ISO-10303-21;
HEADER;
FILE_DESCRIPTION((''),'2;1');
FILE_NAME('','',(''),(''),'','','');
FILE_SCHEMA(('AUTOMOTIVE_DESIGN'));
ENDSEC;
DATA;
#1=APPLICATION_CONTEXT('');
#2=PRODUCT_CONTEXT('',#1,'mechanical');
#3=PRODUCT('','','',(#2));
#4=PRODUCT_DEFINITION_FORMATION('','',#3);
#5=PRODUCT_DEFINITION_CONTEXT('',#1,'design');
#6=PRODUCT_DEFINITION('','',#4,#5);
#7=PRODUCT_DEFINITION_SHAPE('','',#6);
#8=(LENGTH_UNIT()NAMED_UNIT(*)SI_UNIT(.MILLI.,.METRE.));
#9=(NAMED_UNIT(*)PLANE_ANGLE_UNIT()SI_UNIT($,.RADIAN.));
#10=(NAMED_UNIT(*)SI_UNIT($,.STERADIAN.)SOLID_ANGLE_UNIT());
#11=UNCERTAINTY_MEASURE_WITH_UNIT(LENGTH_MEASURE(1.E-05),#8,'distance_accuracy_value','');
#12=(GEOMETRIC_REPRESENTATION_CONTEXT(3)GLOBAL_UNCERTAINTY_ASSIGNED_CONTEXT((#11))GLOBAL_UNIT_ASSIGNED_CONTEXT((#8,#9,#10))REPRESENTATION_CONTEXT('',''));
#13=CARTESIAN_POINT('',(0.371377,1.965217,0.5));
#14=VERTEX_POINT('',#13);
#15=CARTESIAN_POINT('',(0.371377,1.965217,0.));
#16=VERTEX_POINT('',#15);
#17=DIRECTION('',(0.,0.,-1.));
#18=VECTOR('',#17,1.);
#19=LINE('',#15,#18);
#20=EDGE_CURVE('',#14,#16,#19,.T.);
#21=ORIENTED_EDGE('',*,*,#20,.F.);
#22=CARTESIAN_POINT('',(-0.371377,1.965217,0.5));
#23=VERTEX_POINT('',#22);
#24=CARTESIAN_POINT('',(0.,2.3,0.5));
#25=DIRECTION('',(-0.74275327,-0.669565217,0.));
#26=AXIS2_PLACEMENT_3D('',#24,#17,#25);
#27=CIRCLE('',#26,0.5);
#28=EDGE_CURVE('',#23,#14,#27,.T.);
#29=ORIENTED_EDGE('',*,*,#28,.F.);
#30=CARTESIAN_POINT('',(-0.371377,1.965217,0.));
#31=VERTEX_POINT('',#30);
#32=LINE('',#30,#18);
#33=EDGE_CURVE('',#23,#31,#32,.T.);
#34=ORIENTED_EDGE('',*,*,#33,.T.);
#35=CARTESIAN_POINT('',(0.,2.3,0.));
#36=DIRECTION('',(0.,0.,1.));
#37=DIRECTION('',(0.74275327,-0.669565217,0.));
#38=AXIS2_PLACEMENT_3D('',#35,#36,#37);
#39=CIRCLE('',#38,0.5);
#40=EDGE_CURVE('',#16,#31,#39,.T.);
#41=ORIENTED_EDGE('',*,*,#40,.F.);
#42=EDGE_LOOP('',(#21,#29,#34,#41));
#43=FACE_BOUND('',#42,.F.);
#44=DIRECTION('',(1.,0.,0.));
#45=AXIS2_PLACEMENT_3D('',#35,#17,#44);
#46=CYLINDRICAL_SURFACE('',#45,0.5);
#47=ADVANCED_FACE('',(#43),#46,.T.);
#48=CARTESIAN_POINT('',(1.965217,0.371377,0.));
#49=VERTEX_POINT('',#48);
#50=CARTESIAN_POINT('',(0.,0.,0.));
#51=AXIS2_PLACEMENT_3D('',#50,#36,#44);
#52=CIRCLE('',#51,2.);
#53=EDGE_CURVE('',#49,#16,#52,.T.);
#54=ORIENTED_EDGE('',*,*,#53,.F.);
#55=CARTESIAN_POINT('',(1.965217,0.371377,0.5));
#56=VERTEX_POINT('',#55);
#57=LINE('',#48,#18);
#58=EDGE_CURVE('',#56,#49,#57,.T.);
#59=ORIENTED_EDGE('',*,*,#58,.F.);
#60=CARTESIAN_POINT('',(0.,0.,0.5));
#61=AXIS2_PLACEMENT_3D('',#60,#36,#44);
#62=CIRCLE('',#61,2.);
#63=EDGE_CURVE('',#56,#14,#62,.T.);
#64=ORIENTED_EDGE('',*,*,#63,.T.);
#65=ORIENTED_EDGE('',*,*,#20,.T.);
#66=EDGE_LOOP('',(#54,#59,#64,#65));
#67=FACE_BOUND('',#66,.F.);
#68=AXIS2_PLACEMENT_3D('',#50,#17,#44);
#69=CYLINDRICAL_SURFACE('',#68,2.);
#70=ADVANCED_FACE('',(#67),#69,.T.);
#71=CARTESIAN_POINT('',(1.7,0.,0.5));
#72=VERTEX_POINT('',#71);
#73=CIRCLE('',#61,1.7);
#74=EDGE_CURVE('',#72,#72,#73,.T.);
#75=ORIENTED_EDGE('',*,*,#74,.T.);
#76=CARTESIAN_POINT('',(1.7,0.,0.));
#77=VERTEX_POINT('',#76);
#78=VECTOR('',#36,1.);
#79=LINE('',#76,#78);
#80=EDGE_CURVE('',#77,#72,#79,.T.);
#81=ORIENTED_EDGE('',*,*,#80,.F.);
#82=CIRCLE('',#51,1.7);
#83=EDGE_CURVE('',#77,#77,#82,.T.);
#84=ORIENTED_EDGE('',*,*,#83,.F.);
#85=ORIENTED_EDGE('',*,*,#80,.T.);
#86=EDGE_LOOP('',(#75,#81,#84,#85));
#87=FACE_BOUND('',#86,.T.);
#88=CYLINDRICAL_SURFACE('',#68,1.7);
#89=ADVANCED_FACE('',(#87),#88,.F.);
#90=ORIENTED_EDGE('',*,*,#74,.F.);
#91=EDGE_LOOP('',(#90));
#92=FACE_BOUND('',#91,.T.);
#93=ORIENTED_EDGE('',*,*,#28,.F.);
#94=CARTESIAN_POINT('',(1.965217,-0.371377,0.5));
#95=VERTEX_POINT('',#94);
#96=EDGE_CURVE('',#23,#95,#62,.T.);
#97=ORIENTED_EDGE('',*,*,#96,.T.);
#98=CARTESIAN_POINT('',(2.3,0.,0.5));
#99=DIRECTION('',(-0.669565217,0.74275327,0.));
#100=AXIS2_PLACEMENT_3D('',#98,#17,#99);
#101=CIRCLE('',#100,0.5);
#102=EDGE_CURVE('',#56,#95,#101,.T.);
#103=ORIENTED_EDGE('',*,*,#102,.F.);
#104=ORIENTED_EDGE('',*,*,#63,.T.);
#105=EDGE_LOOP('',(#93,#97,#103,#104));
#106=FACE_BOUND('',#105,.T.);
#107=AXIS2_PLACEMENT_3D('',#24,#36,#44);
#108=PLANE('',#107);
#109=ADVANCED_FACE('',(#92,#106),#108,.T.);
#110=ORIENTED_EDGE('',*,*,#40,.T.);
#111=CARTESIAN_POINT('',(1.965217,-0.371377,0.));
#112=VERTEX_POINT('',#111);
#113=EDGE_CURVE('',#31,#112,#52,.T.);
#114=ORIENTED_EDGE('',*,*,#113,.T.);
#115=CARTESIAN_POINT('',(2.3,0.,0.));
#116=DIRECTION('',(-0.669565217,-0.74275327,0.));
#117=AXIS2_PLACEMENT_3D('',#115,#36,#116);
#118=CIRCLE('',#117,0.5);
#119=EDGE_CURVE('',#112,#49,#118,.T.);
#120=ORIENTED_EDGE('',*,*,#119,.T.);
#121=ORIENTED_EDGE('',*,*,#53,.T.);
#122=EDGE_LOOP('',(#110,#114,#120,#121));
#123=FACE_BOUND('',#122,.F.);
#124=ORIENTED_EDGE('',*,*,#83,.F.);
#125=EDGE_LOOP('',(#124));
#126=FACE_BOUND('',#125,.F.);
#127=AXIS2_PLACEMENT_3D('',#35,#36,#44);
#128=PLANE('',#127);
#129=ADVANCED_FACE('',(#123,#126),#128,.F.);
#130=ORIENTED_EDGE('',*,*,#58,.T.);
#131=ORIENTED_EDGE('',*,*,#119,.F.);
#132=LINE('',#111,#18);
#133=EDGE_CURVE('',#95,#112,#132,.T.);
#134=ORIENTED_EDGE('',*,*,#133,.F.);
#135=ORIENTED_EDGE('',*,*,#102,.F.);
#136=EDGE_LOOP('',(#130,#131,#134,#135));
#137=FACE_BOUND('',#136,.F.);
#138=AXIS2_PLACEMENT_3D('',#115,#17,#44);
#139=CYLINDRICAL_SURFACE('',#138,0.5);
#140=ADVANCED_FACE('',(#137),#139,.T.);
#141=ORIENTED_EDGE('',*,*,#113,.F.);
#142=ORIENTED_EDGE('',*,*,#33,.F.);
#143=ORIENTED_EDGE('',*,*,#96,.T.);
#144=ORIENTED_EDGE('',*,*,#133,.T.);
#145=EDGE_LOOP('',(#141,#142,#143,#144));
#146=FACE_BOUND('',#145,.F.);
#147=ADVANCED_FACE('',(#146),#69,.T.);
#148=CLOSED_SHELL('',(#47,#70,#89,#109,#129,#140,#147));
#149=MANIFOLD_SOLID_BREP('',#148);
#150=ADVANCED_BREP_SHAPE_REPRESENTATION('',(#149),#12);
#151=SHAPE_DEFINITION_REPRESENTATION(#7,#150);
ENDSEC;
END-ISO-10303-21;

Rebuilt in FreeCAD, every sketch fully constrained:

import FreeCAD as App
import Part
import Sketcher

V = App.Vector

doc = App.newDocument("Part")
body = doc.addObject("PartDesign::Body", "Body")

# Sketch on XY plane
sketch1 = doc.addObject("Sketcher::SketchObject", "Sketch")
body.addObject(sketch1)
sketch1.AttachmentSupport = (doc.XY_Plane, [""])
sketch1.MapMode = "FlatFace"
sketch1.addGeometry(Part.Circle(V(0, 2.3, 0), V(0, 0, 1), 0.5), False)
sketch1.addConstraint(Sketcher.Constraint("PointOnObject", 0, 3, -2))
sketch1.addConstraint(Sketcher.Constraint("Diameter", 0, 1.0))
sketch1.addConstraint(Sketcher.Constraint("DistanceY", -1, 1, 0, 3, 2.3))
pad1 = doc.addObject("PartDesign::Pad", "Pad")
body.addObject(pad1)
pad1.Profile = sketch1
pad1.Length = 0.5
body2 = doc.addObject("PartDesign::Body", "Body001")

# Sketch on XY plane
sketch2 = doc.addObject("Sketcher::SketchObject", "Sketch001")
body2.addObject(sketch2)
sketch2.AttachmentSupport = (doc.getObject("XY_Plane001"), [""])
sketch2.MapMode = "FlatFace"
sketch2.addGeometry(Part.Circle(V(2.3, 0, 0), V(0, 0, 1), 0.5), False)
sketch2.addConstraint(Sketcher.Constraint("PointOnObject", 0, 3, -1))
sketch2.addConstraint(Sketcher.Constraint("Diameter", 0, 1.0))
sketch2.addConstraint(Sketcher.Constraint("DistanceX", -1, 1, 0, 3, 2.3))
pad2 = doc.addObject("PartDesign::Pad", "Pad001")
body2.addObject(pad2)
pad2.Profile = sketch2
pad2.Length = 0.5
body3 = doc.addObject("PartDesign::Body", "Body002")

# Sketch on XY plane
sketch3 = doc.addObject("Sketcher::SketchObject", "Sketch002")
body3.addObject(sketch3)
sketch3.AttachmentSupport = (doc.getObject("XY_Plane002"), [""])
sketch3.MapMode = "FlatFace"
sketch3.addGeometry(Part.Circle(V(0, 0, 0), V(0, 0, 1), 1.7), False)
sketch3.addConstraint(Sketcher.Constraint("Coincident", 0, 3, -1, 1))
sketch3.addConstraint(Sketcher.Constraint("Diameter", 0, 3.4))
pad3 = doc.addObject("PartDesign::Pad", "Pad002")
body3.addObject(pad3)
pad3.Profile = sketch3
pad3.Length = 0.5
body4 = doc.addObject("PartDesign::Body", "Body003")

# Sketch on XY plane
sketch4 = doc.addObject("Sketcher::SketchObject", "Sketch003")
body4.addObject(sketch4)
sketch4.AttachmentSupport = (doc.getObject("XY_Plane003"), [""])
sketch4.MapMode = "FlatFace"
sketch4.addGeometry(Part.Circle(V(0, 0, 0), V(0, 0, 1), 2), False)
sketch4.addConstraint(Sketcher.Constraint("Coincident", 0, 3, -1, 1))
sketch4.addConstraint(Sketcher.Constraint("Diameter", 0, 4.0))
pad4 = doc.addObject("PartDesign::Pad", "Pad003")
body4.addObject(pad4)
pad4.Profile = sketch4
pad4.Length = 0.5
doc.recompute()

boolean = doc.addObject("PartDesign::Boolean", "Boolean")
body4.addObject(boolean)
boolean.Type = "Cut"
boolean.addObjects([body3])
doc.recompute()

boolean2 = doc.addObject("PartDesign::Boolean", "Boolean001")
body4.addObject(boolean2)
boolean2.Type = "Fuse"
boolean2.addObjects([body2])
doc.recompute()

boolean3 = doc.addObject("PartDesign::Boolean", "Boolean002")
body4.addObject(boolean3)
boolean3.Type = "Fuse"
boolean3.addObjects([body])

doc.recompute()
